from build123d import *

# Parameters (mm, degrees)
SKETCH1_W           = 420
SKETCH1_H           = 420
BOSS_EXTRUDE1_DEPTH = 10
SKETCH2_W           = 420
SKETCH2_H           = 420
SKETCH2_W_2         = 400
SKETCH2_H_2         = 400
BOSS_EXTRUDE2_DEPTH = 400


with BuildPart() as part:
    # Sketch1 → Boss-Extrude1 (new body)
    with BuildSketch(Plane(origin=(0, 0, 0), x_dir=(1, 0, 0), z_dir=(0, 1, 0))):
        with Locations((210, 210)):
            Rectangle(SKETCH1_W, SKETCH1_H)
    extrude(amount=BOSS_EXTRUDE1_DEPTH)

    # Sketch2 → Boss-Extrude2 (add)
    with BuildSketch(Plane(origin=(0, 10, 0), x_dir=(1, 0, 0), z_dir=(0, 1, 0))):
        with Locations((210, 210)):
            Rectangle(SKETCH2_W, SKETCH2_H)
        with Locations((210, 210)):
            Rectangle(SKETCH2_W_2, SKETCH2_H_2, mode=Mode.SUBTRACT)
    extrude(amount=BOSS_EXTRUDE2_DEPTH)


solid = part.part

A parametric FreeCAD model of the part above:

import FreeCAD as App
import Part
import Sketcher
Q = App.Units.Quantity

doc = App.newDocument("Part")
body = doc.addObject("PartDesign::Body", "Body")

sketch1 = body.newObject("Sketcher::SketchObject", "Sketch")
sketch1.AttachmentSupport = (doc.getObject("XZ_Plane"), [""])
sketch1.MapMode = "FlatFace"
sketch1.addGeometry(Part.LineSegment(App.Vector(0, -420, 0), App.Vector(0, 0, 0)), False)
sketch1.addGeometry(Part.LineSegment(App.Vector(0, 0, 0), App.Vector(420, 0, 0)), False)
sketch1.addGeometry(Part.LineSegment(App.Vector(420, 0, 0), App.Vector(420, -420, 0)), False)
sketch1.addGeometry(Part.LineSegment(App.Vector(420, -420, 0), App.Vector(0, -420, 0)), False)
sketch1.addConstraint(Sketcher.Constraint("Coincident", 0, 2, 1, 1))
sketch1.addConstraint(Sketcher.Constraint("Coincident", 1, 2, 2, 1))
sketch1.addConstraint(Sketcher.Constraint("Coincident", 2, 2, 3, 1))
sketch1.addConstraint(Sketcher.Constraint("Coincident", 3, 2, 0, 1))
sketch1.addConstraint(Sketcher.Constraint("Vertical", 0))
sketch1.addConstraint(Sketcher.Constraint("Horizontal", 1))
sketch1.addConstraint(Sketcher.Constraint("Vertical", 2))
sketch1.addConstraint(Sketcher.Constraint("Horizontal", 3))
sketch1.addConstraint(Sketcher.Constraint("Coincident", 0, 2, -1, 1))
sketch1.addConstraint(Sketcher.Constraint("Equal", 3, 0))
sketch1.addConstraint(Sketcher.Constraint("DistanceX", 1, 1, 1, 2, Q("420 mm")))
pad1 = body.newObject("PartDesign::Pad", "Pad")
pad1.Profile = sketch1
pad1.Length = 10
pad1.Reversed = True

sketch2 = body.newObject("Sketcher::SketchObject", "Sketch001")
sketch2.AttachmentSupport = (doc.getObject("XZ_Plane"), [""])
sketch2.MapMode = "FlatFace"
sketch2.AttachmentOffset = App.Placement(App.Vector(0, 0, -10), App.Rotation())
sketch2.addGeometry(Part.LineSegment(App.Vector(0, -420, 0), App.Vector(0, 0, 0)), False)
sketch2.addGeometry(Part.LineSegment(App.Vector(0, 0, 0), App.Vector(420, 0, 0)), False)
sketch2.addGeometry(Part.LineSegment(App.Vector(420, 0, 0), App.Vector(420, -420, 0)), False)
sketch2.addGeometry(Part.LineSegment(App.Vector(420, -420, 0), App.Vector(0, -420, 0)), False)
sketch2.addGeometry(Part.LineSegment(App.Vector(410, -10, 0), App.Vector(10, -10, 0)), False)
sketch2.addGeometry(Part.LineSegment(App.Vector(10, -10, 0), App.Vector(10, -410, 0)), False)
sketch2.addGeometry(Part.LineSegment(App.Vector(10, -410, 0), App.Vector(410, -410, 0)), False)
sketch2.addGeometry(Part.LineSegment(App.Vector(410, -410, 0), App.Vector(410, -10, 0)), False)
sketch2.addConstraint(Sketcher.Constraint("Coincident", 0, 2, 1, 1))
sketch2.addConstraint(Sketcher.Constraint("Coincident", 1, 2, 2, 1))
sketch2.addConstraint(Sketcher.Constraint("Coincident", 2, 2, 3, 1))
sketch2.addConstraint(Sketcher.Constraint("Coincident", 3, 2, 0, 1))
sketch2.addConstraint(Sketcher.Constraint("Coincident", 4, 2, 5, 1))
sketch2.addConstraint(Sketcher.Constraint("Coincident", 5, 2, 6, 1))
sketch2.addConstraint(Sketcher.Constraint("Coincident", 6, 2, 7, 1))
sketch2.addConstraint(Sketcher.Constraint("Coincident", 7, 2, 4, 1))
sketch2.addConstraint(Sketcher.Constraint("Vertical", 0))
sketch2.addConstraint(Sketcher.Constraint("Horizontal", 1))
sketch2.addConstraint(Sketcher.Constraint("Vertical", 2))
sketch2.addConstraint(Sketcher.Constraint("Horizontal", 3))
sketch2.addConstraint(Sketcher.Constraint("Horizontal", 4))
sketch2.addConstraint(Sketcher.Constraint("Vertical", 5))
sketch2.addConstraint(Sketcher.Constraint("Horizontal", 6))
sketch2.addConstraint(Sketcher.Constraint("Vertical", 7))
sketch2.addConstraint(Sketcher.Constraint("Coincident", 0, 2, -1, 1))
sketch2.addConstraint(Sketcher.Constraint("Equal", 3, 0))
sketch2.addConstraint(Sketcher.Constraint("Equal", 6, 5))
sketch2.addConstraint(Sketcher.Constraint("DistanceX", 1, 1, 1, 2, Q("420 mm")))
sketch2.addConstraint(Sketcher.Constraint("DistanceX", 4, 2, 4, 1, Q("400 mm")))
sketch2.addConstraint(Sketcher.Constraint("DistanceX", -1, 1, 4, 2, Q("10 mm")))
sketch2.addConstraint(Sketcher.Constraint("DistanceY", 4, 2, -1, 1, Q("10 mm")))
pad2 = body.newObject("PartDesign::Pad", "Pad001")
pad2.Profile = sketch2
pad2.Length = 400
pad2.Reversed = True

doc.recompute()
